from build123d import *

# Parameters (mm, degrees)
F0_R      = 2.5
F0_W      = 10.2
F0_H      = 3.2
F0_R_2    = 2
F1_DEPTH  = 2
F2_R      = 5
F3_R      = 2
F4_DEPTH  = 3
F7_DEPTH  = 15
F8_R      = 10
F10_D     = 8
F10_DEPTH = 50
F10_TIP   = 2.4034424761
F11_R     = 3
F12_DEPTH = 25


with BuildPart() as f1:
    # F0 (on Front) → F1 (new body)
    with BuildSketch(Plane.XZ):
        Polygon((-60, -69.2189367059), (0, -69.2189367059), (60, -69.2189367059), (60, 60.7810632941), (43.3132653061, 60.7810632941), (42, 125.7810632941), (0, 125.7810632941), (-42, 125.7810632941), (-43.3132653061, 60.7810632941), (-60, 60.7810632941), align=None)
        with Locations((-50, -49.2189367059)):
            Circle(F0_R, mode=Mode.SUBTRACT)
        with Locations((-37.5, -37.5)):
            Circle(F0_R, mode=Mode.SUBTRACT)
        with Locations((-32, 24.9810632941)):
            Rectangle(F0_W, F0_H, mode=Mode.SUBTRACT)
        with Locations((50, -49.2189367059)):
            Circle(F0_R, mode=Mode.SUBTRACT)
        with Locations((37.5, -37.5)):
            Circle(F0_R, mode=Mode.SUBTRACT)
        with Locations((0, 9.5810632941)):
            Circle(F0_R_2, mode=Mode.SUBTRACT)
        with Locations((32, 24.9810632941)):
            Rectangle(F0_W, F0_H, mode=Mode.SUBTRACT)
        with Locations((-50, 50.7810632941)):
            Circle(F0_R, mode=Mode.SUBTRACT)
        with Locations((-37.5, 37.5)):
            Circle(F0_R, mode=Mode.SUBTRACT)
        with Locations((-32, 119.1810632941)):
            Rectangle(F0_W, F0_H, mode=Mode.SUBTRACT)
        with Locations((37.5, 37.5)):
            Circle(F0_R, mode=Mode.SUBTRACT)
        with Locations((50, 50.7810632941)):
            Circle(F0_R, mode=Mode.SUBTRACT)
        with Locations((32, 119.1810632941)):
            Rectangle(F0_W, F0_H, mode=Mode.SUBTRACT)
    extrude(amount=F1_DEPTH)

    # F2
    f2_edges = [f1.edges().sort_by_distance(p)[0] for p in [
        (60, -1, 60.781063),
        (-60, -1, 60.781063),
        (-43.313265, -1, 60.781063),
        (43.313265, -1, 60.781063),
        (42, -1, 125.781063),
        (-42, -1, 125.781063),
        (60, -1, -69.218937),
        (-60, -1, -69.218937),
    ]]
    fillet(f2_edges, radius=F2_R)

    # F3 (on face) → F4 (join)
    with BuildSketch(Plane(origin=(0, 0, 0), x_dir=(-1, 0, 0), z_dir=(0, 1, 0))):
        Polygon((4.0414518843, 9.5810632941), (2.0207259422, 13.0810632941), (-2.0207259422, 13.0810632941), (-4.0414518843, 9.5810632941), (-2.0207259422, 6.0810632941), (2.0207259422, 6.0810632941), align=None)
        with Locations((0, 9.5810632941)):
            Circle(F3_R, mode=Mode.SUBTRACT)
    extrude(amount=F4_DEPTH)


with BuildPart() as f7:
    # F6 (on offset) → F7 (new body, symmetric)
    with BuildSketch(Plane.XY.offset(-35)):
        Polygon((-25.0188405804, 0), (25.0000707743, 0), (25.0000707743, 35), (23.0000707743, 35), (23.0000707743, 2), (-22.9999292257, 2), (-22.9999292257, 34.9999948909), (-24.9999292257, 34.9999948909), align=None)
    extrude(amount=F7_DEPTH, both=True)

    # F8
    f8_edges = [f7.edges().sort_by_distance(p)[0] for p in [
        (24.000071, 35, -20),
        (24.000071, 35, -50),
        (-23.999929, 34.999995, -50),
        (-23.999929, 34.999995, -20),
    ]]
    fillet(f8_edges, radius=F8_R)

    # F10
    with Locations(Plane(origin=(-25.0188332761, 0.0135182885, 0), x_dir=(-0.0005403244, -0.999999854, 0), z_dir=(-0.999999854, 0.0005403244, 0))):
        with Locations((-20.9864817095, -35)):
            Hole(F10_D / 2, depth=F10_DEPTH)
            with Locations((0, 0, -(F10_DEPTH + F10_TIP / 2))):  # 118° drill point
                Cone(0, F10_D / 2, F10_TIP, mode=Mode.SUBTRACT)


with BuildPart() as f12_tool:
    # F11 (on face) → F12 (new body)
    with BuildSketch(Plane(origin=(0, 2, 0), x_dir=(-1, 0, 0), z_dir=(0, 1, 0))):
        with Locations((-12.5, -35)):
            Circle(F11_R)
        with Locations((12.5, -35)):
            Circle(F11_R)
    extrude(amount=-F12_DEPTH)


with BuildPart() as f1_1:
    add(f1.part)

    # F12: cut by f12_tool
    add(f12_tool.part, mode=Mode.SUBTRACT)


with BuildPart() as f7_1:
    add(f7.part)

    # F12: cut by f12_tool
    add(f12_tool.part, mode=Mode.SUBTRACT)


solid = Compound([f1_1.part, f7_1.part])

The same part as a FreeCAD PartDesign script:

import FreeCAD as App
import Part
import Sketcher
Q = App.Units.Quantity


def edges_at(feature, points):
    """Names of the edges that pass closest to the given points."""
    edges = feature.Shape.Edges
    near = lambda p: min(range(len(edges)), key=lambda i: edges[i].distToShape(Part.Vertex(*p))[0])
    return sorted({f"Edge{near(p) + 1}" for p in points})

doc = App.newDocument("Part")
body = doc.addObject("PartDesign::Body", "Body")

# Sketch on XZ plane
sketch1 = doc.addObject("Sketcher::SketchObject", "Sketch")
body.addObject(sketch1)
sketch1.AttachmentSupport = (doc.XZ_Plane, [""])
sketch1.MapMode = "FlatFace"
sketch1.addGeometry(Part.LineSegment(App.Vector(-60, -69.218937, 0), App.Vector(60, -69.218937, 0)), False)
sketch1.addGeometry(Part.LineSegment(App.Vector(60, -69.218937, 0), App.Vector(60, 60.781063, 0)), False)
sketch1.addGeometry(Part.LineSegment(App.Vector(60, 60.781063, 0), App.Vector(43.313265, 60.781063, 0)), False)
sketch1.addGeometry(Part.LineSegment(App.Vector(43.313265, 60.781063, 0), App.Vector(42, 125.781063, 0)), False)
sketch1.addGeometry(Part.LineSegment(App.Vector(42, 125.781063, 0), App.Vector(-42, 125.781063, 0)), False)
sketch1.addGeometry(Part.LineSegment(App.Vector(-42, 125.781063, 0), App.Vector(-43.313265, 60.781063, 0)), False)
sketch1.addGeometry(Part.LineSegment(App.Vector(-43.313265, 60.781063, 0), App.Vector(-60, 60.781063, 0)), False)
sketch1.addGeometry(Part.LineSegment(App.Vector(-60, 60.781063, 0), App.Vector(-60, -69.218937, 0)), False)
sketch1.addGeometry(Part.Circle(App.Vector(-50, -49.218937, 0), App.Vector(0, 0, 1), 2.5), False)
sketch1.addGeometry(Part.Circle(App.Vector(-37.5, -37.5, 0), App.Vector(0, 0, 1), 2.5), False)
sketch1.addGeometry(Part.LineSegment(App.Vector(-26.9, 23.381063, 0), App.Vector(-37.1, 23.381063, 0)), False)
sketch1.addGeometry(Part.LineSegment(App.Vector(-37.1, 23.381063, 0), App.Vector(-37.1, 26.581063, 0)), False)
sketch1.addGeometry(Part.LineSegment(App.Vector(-37.1, 26.581063, 0), App.Vector(-26.9, 26.581063, 0)), False)
sketch1.addGeometry(Part.LineSegment(App.Vector(-26.9, 26.581063, 0), App.Vector(-26.9, 23.381063, 0)), False)
sketch1.addGeometry(Part.Circle(App.Vector(37.5, -37.5, 0), App.Vector(0, 0, 1), 2.5), False)
sketch1.addGeometry(Part.Circle(App.Vector(50, -49.218937, 0), App.Vector(0, 0, 1), 2.5), False)
sketch1.addGeometry(Part.Circle(App.Vector(0, 9.581063, 0), App.Vector(0, 0, 1), 2), False)
sketch1.addGeometry(Part.LineSegment(App.Vector(37.1, 23.381063, 0), App.Vector(26.9, 23.381063, 0)), False)
sketch1.addGeometry(Part.LineSegment(App.Vector(26.9, 23.381063, 0), App.Vector(26.9, 26.581063, 0)), False)
sketch1.addGeometry(Part.LineSegment(App.Vector(26.9, 26.581063, 0), App.Vector(37.1, 26.581063, 0)), False)
sketch1.addGeometry(Part.LineSegment(App.Vector(37.1, 26.581063, 0), App.Vector(37.1, 23.381063, 0)), False)
sketch1.addGeometry(Part.Circle(App.Vector(-50, 50.781063, 0), App.Vector(0, 0, 1), 2.5), False)
sketch1.addGeometry(Part.Circle(App.Vector(-37.5, 37.5, 0), App.Vector(0, 0, 1), 2.5), False)
sketch1.addGeometry(Part.LineSegment(App.Vector(-26.9, 117.581063, 0), App.Vector(-37.1, 117.581063, 0)), False)
sketch1.addGeometry(Part.LineSegment(App.Vector(-37.1, 117.581063, 0), App.Vector(-37.1, 120.781063, 0)), False)
sketch1.addGeometry(Part.LineSegment(App.Vector(-37.1, 120.781063, 0), App.Vector(-26.9, 120.781063, 0)), False)
sketch1.addGeometry(Part.LineSegment(App.Vector(-26.9, 120.781063, 0), App.Vector(-26.9, 117.581063, 0)), False)
sketch1.addGeometry(Part.Circle(App.Vector(37.5, 37.5, 0), App.Vector(0, 0, 1), 2.5), False)
sketch1.addGeometry(Part.Circle(App.Vector(50, 50.781063, 0), App.Vector(0, 0, 1), 2.5), False)
sketch1.addGeometry(Part.LineSegment(App.Vector(37.1, 117.581063, 0), App.Vector(26.9, 117.581063, 0)), False)
sketch1.addGeometry(Part.LineSegment(App.Vector(26.9, 117.581063, 0), App.Vector(26.9, 120.781063, 0)), False)
sketch1.addGeometry(Part.LineSegment(App.Vector(26.9, 120.781063, 0), App.Vector(37.1, 120.781063, 0)), False)
sketch1.addGeometry(Part.LineSegment(App.Vector(37.1, 120.781063, 0), App.Vector(37.1, 117.581063, 0)), False)
sketch1.addConstraint(Sketcher.Constraint("Coincident", 0, 2, 1, 1))
sketch1.addConstraint(Sketcher.Constraint("Coincident", 1, 2, 2, 1))
sketch1.addConstraint(Sketcher.Constraint("Coincident", 2, 2, 3, 1))
sketch1.addConstraint(Sketcher.Constraint("Coincident", 3, 2, 4, 1))
sketch1.addConstraint(Sketcher.Constraint("Coincident", 4, 2, 5, 1))
sketch1.addConstraint(Sketcher.Constraint("Coincident", 5, 2, 6, 1))
sketch1.addConstraint(Sketcher.Constraint("Coincident", 6, 2, 7, 1))
sketch1.addConstraint(Sketcher.Constraint("Coincident", 7, 2, 0, 1))
sketch1.addConstraint(Sketcher.Constraint("Coincident", 10, 2, 11, 1))
sketch1.addConstraint(Sketcher.Constraint("Coincident", 11, 2, 12, 1))
sketch1.addConstraint(Sketcher.Constraint("Coincident", 12, 2, 13, 1))
sketch1.addConstraint(Sketcher.Constraint("Coincident", 13, 2, 10, 1))
sketch1.addConstraint(Sketcher.Constraint("Coincident", 17, 2, 18, 1))
sketch1.addConstraint(Sketcher.Constraint("Coincident", 18, 2, 19, 1))
sketch1.addConstraint(Sketcher.Constraint("Coincident", 19, 2, 20, 1))
sketch1.addConstraint(Sketcher.Constraint("Coincident", 20, 2, 17, 1))
sketch1.addConstraint(Sketcher.Constraint("Coincident", 23, 2, 24, 1))
sketch1.addConstraint(Sketcher.Constraint("Coincident", 24, 2, 25, 1))
sketch1.addConstraint(Sketcher.Constraint("Coincident", 25, 2, 26, 1))
sketch1.addConstraint(Sketcher.Constraint("Coincident", 26, 2, 23, 1))
sketch1.addConstraint(Sketcher.Constraint("Coincident", 29, 2, 30, 1))
sketch1.addConstraint(Sketcher.Constraint("Coincident", 30, 2, 31, 1))
sketch1.addConstraint(Sketcher.Constraint("Coincident", 31, 2, 32, 1))
sketch1.addConstraint(Sketcher.Constraint("Coincident", 32, 2, 29, 1))
sketch1.addConstraint(Sketcher.Constraint("Horizontal", 0))
sketch1.addConstraint(Sketcher.Constraint("Vertical", 1))
sketch1.addConstraint(Sketcher.Constraint("Horizontal", 2))
sketch1.addConstraint(Sketcher.Constraint("Horizontal", 4))
sketch1.addConstraint(Sketcher.Constraint("Horizontal", 6))
sketch1.addConstraint(Sketcher.Constraint("Vertical", 7))
sketch1.addConstraint(Sketcher.Constraint("Horizontal", 10))
sketch1.addConstraint(Sketcher.Constraint("Vertical", 11))
sketch1.addConstraint(Sketcher.Constraint("Horizontal", 12))
sketch1.addConstraint(Sketcher.Constraint("Vertical", 13))
sketch1.addConstraint(Sketcher.Constraint("Horizontal", 17))
sketch1.addConstraint(Sketcher.Constraint("Vertical", 18))
sketch1.addConstraint(Sketcher.Constraint("Horizontal", 19))
sketch1.addConstraint(Sketcher.Constraint("Vertical", 20))
sketch1.addConstraint(Sketcher.Constraint("Horizontal", 23))
sketch1.addConstraint(Sketcher.Constraint("Vertical", 24))
sketch1.addConstraint(Sketcher.Constraint("Horizontal", 25))
sketch1.addConstraint(Sketcher.Constraint("Vertical", 26))
sketch1.addConstraint(Sketcher.Constraint("Horizontal", 29))
sketch1.addConstraint(Sketcher.Constraint("Vertical", 30))
sketch1.addConstraint(Sketcher.Constraint("Horizontal", 31))
sketch1.addConstraint(Sketcher.Constraint("Vertical", 32))
sketch1.addConstraint(Sketcher.Constraint("Equal", 8, 9))
sketch1.addConstraint(Sketcher.Constraint("Equal", 9, 14))
sketch1.addConstraint(Sketcher.Constraint("Equal", 14, 15))
sketch1.addConstraint(Sketcher.Constraint("Equal", 15, 21))
sketch1.addConstraint(Sketcher.Constraint("Equal", 21, 22))
sketch1.addConstraint(Sketcher.Constraint("Equal", 22, 27))
sketch1.addConstraint(Sketcher.Constraint("Equal", 27, 28))
sketch1.addConstraint(Sketcher.Constraint("Symmetric", 14, 3, 22, 3, -1, 1))
sketch1.addConstraint(Sketcher.Constraint("Symmetric", 9, 3, 27, 3, -1, 1))
sketch1.addConstraint(Sketcher.Constraint("Symmetric", 9, 3, 14, 3, -2))
sketch1.addConstraint(Sketcher.Constraint("Symmetric", 8, 3, 15, 3, -2))
sketch1.addConstraint(Sketcher.Constraint("Symmetric", 21, 3, 28, 3, -2))
sketch1.addConstraint(Sketcher.Constraint("Symmetric", 2, 2, 5, 2, -2))
sketch1.addConstraint(Sketcher.Constraint("Symmetric", 13, 2, 17, 2, -2))
sketch1.addConstraint(Sketcher.Constraint("Symmetric", 11, 2, 19, 2, -2))
sketch1.addConstraint(Sketcher.Constraint("Symmetric", 26, 2, 29, 2, -2))
sketch1.addConstraint(Sketcher.Constraint("Symmetric", 24, 2, 31, 2, -2))
sketch1.addConstraint(Sketcher.Constraint("PointOnObject", 16, 3, -2))
sketch1.addConstraint(Sketcher.Constraint("Vertical", 8, 3, 21, 3))
sketch1.addConstraint(Sketcher.Constraint("Vertical", 11, 2, 23, 2))
sketch1.addConstraint(Sketcher.Constraint("Vertical", 13, 2, 25, 2))
sketch1.addConstraint(Sketcher.Constraint("Equal", 2, 6))
sketch1.addConstraint(Sketcher.Constraint("Equal", 20, 24))
sketch1.addConstraint(Sketcher.Constraint("Equal", 3, 5))
sketch1.addConstraint(Sketcher.Constraint("Diameter", 8, Q("5 mm")))
sketch1.addConstraint(Sketcher.Constraint("Diameter", 16, Q("4 mm")))
sketch1.addConstraint(Sketcher.Constraint("DistanceX", 0, 1, 0, 2, Q("120 mm")))
sketch1.addConstraint(Sketcher.Constraint("DistanceX", 4, 2, 4, 1, Q("84 mm")))
sketch1.addConstraint(Sketcher.Constraint("DistanceY", 1, 1, 1, 2, Q("130 mm")))
sketch1.addConstraint(Sketcher.Constraint("DistanceX", 10, 2, 10, 1, Q("10.2 mm")))
sketch1.addConstraint(Sketcher.Constraint("DistanceY", 11, 1, 11, 2, Q("3.2 mm")))
sketch1.addConstraint(Sketcher.Constraint("DistanceX", 8, 3, -1, 1, Q("50 mm")))
sketch1.addConstraint(Sketcher.Constraint("DistanceX", 9, 3, 14, 3, Q("75 mm")))
sketch1.addConstraint(Sketcher.Constraint("DistanceY", 8, 3, 21, 3, Q("100 mm")))
sketch1.addConstraint(Sketcher.Constraint("DistanceY", 9, 3, 22, 3, Q("75 mm")))
sketch1.addConstraint(Sketcher.Constraint("DistanceY", 0, 2, 15, 3, Q("20 mm")))
sketch1.addConstraint(Sketcher.Constraint("DistanceY", 2, 2, 3, 2, Q("65 mm")))
sketch1.addConstraint(Sketcher.Constraint("DistanceY", 16, 3, 11, 2, Q("17 mm")))
sketch1.addConstraint(Sketcher.Constraint("DistanceY", 24, 2, 4, 2, Q("5 mm")))
sketch1.addConstraint(Sketcher.Constraint("DistanceX", 23, 2, 29, 2, Q("64 mm")))
sketch1.addConstraint(Sketcher.Constraint("DistanceY", 8, 3, 16, 3, Q("58.8 mm")))
sketch1.addConstraint(Sketcher.Constraint("DistanceX", 2, 2, 2, 1, Q("16.686735 mm")))
sketch1.addConstraint(Sketcher.Constraint("DistanceY", 8, 3, -1, 1, Q("49.218937 mm")))
pad1 = doc.addObject("PartDesign::Pad", "Pad")
body.addObject(pad1)
pad1.Profile = sketch1
pad1.Length = 2
doc.recompute()

fillet = doc.addObject("PartDesign::Fillet", "Fillet")
body.addObject(fillet)
fillet.Base = (pad1, edges_at(pad1, [
    (60, -1, 60.781),
    (-60, -1, 60.781),
    (-43.313, -1, 60.781),
    (43.313, -1, 60.781),
    (42, -1, 125.781),
    (-42, -1, 125.781),
    (60, -1, -69.219),
    (-60, -1, -69.219),
]))
fillet.Radius = 5

# Sketch on XZ plane
sketch2 = doc.addObject("Sketcher::SketchObject", "Sketch001")
body.addObject(sketch2)
sketch2.AttachmentSupport = (doc.XZ_Plane, [""])
sketch2.MapMode = "FlatFace"
sketch2.addGeometry(Part.LineSegment(App.Vector(-4.041452, 9.581063, 0), App.Vector(-2.020726, 13.081063, 0)), False)
sketch2.addGeometry(Part.LineSegment(App.Vector(-2.020726, 13.081063, 0), App.Vector(2.020726, 13.081063, 0)), False)
sketch2.addGeometry(Part.LineSegment(App.Vector(2.020726, 13.081063, 0), App.Vector(4.041452, 9.581063, 0)), False)
sketch2.addGeometry(Part.LineSegment(App.Vector(4.041452, 9.581063, 0), App.Vector(2.020726, 6.081063, 0)), False)
sketch2.addGeometry(Part.LineSegment(App.Vector(2.020726, 6.081063, 0), App.Vector(-2.020726, 6.081063, 0)), False)
sketch2.addGeometry(Part.LineSegment(App.Vector(-2.020726, 6.081063, 0), App.Vector(-4.041452, 9.581063, 0)), False)
sketch2.addGeometry(Part.Circle(App.Vector(0, 9.581063, 0), App.Vector(0, 0, 1), 2), False)
sketch2.addConstraint(Sketcher.Constraint("Coincident", 0, 2, 1, 1))
sketch2.addConstraint(Sketcher.Constraint("Coincident", 1, 2, 2, 1))
sketch2.addConstraint(Sketcher.Constraint("Coincident", 2, 2, 3, 1))
sketch2.addConstraint(Sketcher.Constraint("Coincident", 3, 2, 4, 1))
sketch2.addConstraint(Sketcher.Constraint("Coincident", 4, 2, 5, 1))
sketch2.addConstraint(Sketcher.Constraint("Coincident", 5, 2, 0, 1))
sketch2.addConstraint(Sketcher.Constraint("Horizontal", 1))
sketch2.addConstraint(Sketcher.Constraint("Horizontal", 4))
sketch2.addConstraint(Sketcher.Constraint("Symmetric", 2, 2, 5, 2, -2))
sketch2.addConstraint(Sketcher.Constraint("PointOnObject", 6, 3, -2))
sketch2.addConstraint(Sketcher.Constraint("Parallel", 0, 3))
sketch2.addConstraint(Sketcher.Constraint("Parallel", 2, 5))
sketch2.addConstraint(Sketcher.Constraint("Horizontal", 6, 3, 2, 2))
sketch2.addConstraint(Sketcher.Constraint("Vertical", 1, 2, 3, 2))
sketch2.addConstraint(Sketcher.Constraint("Vertical", 0, 2, 4, 2))
sketch2.addConstraint(Sketcher.Constraint("Diameter", 6, Q("4 mm")))
sketch2.addConstraint(Sketcher.Constraint("Angle", 0, Q("60 deg")))
sketch2.addConstraint(Sketcher.Constraint("DistanceY", 3, 2, 1, 2, Q("7 mm")))
sketch2.addConstraint(Sketcher.Constraint("DistanceX", 1, 1, 1, 2, Q("4.041452 mm")))
sketch2.addConstraint(Sketcher.Constraint("DistanceY", -1, 1, 6, 3, Q("9.581063 mm")))
pad2 = doc.addObject("PartDesign::Pad", "Pad001")
body.addObject(pad2)
pad2.Profile = sketch2
pad2.Length = 3
pad2.Reversed = True
body2 = doc.addObject("PartDesign::Body", "Body001")

# Sketch on XY plane
sketch3 = doc.addObject("Sketcher::SketchObject", "Sketch002")
body2.addObject(sketch3)
sketch3.AttachmentSupport = (doc.getObject("XY_Plane001"), [""])
sketch3.MapMode = "FlatFace"
sketch3.AttachmentOffset = App.Placement(App.Vector(0, 0, -35), App.Rotation())
sketch3.addGeometry(Part.LineSegment(App.Vector(-25.018841, 0, 0), App.Vector(25.000071, 0, 0)), False)
sketch3.addGeometry(Part.LineSegment(App.Vector(25.000071, 0, 0), App.Vector(25.000071, 35, 0)), False)
sketch3.addGeometry(Part.LineSegment(App.Vector(25.000071, 35, 0), App.Vector(23.000071, 35, 0)), False)
sketch3.addGeometry(Part.LineSegment(App.Vector(23.000071, 35, 0), App.Vector(23.000071, 2, 0)), False)
sketch3.addGeometry(Part.LineSegment(App.Vector(23.000071, 2, 0), App.Vector(-22.999929, 2, 0)), False)
sketch3.addGeometry(Part.LineSegment(App.Vector(-22.999929, 2, 0), App.Vector(-22.999929, 34.999995, 0)), False)
sketch3.addGeometry(Part.LineSegment(App.Vector(-22.999929, 34.999995, 0), App.Vector(-24.999929, 34.999995, 0)), False)
sketch3.addGeometry(Part.LineSegment(App.Vector(-24.999929, 34.999995, 0), App.Vector(-25.018841, 0, 0)), False)
sketch3.addConstraint(Sketcher.Constraint("Coincident", 0, 2, 1, 1))
sketch3.addConstraint(Sketcher.Constraint("Coincident", 1, 2, 2, 1))
sketch3.addConstraint(Sketcher.Constraint("Coincident", 2, 2, 3, 1))
sketch3.addConstraint(Sketcher.Constraint("Coincident", 3, 2, 4, 1))
sketch3.addConstraint(Sketcher.Constraint("Coincident", 4, 2, 5, 1))
sketch3.addConstraint(Sketcher.Constraint("Coincident", 5, 2, 6, 1))
sketch3.addConstraint(Sketcher.Constraint("Coincident", 6, 2, 7, 1))
sketch3.addConstraint(Sketcher.Constraint("Coincident", 7, 2, 0, 1))
sketch3.addConstraint(Sketcher.Constraint("Horizontal", 0))
sketch3.addConstraint(Sketcher.Constraint("Vertical", 1))
sketch3.addConstraint(Sketcher.Constraint("Horizontal", 2))
sketch3.addConstraint(Sketcher.Constraint("Vertical", 3))
sketch3.addConstraint(Sketcher.Constraint("Horizontal", 4))
sketch3.addConstraint(Sketcher.Constraint("Vertical", 5))
sketch3.addConstraint(Sketcher.Constraint("Horizontal", 6))
sketch3.addConstraint(Sketcher.Constraint("PointOnObject", 0, 2, -1))
sketch3.addConstraint(Sketcher.Constraint("Equal", 2, 6))
sketch3.addConstraint(Sketcher.Constraint("DistanceX", 2, 2, 2, 1, Q("2 mm")))
sketch3.addConstraint(Sketcher.Constraint("DistanceX", 4, 2, 4, 1, Q("46 mm")))
sketch3.addConstraint(Sketcher.Constraint("DistanceY", 1, 1, 1, 2, Q("35 mm")))
sketch3.addConstraint(Sketcher.Constraint("DistanceY", 3, 2, 3, 1, Q("33 mm")))
sketch3.addConstraint(Sketcher.Constraint("Distance", 7, Q("35 mm")))
sketch3.addConstraint(Sketcher.Constraint("DistanceX", 0, 1, 0, 2, Q("50.018911 mm")))
sketch3.addConstraint(Sketcher.Constraint("DistanceX", -1, 1, 0, 2, Q("25.000071 mm")))
pad3 = doc.addObject("PartDesign::Pad", "Pad002")
body2.addObject(pad3)
pad3.Profile = sketch3
pad3.Length = 30
pad3.Midplane = True
doc.recompute()

fillet2 = doc.addObject("PartDesign::Fillet", "Fillet001")
body2.addObject(fillet2)
fillet2.Base = (pad3, edges_at(pad3, [
    (24, 35, -20),
    (24, 35, -50),
    (-24, 35, -50),
    (-24, 35, -20),
]))
fillet2.Radius = 10

# Sketch on an angled plane
sketch4 = doc.addObject("Sketcher::SketchObject", "Sketch003")
body2.addObject(sketch4)
sketch4.Placement = App.Placement(App.Vector(-25.018833, 0.013518, 0), App.Rotation(App.Vector(-0.000540324, -0.999999854, 0), App.Vector(0, 0, 1), App.Vector(-0.999999854, 0.000540324, 0), "ZXY"))
sketch4.addGeometry(Part.Circle(App.Vector(-20.986482, -35, 0), App.Vector(0, 0, 1), 4), False)
sketch4.addConstraint(Sketcher.Constraint("Diameter", 0, Q("8 mm")))
sketch4.addConstraint(Sketcher.Constraint("DistanceY", 0, 3, -1, 1, Q("35 mm")))
sketch4.addConstraint(Sketcher.Constraint("DistanceX", 0, 3, -1, 1, Q("20.986482 mm")))
doc.recompute()
hole = doc.addObject("PartDesign::Hole", "Hole")
body2.addObject(hole)
hole.Profile = sketch4
hole.ThreadType = "None"
hole.Diameter = 8
hole.DepthType = "Dimension"
hole.Depth = 50
hole.DrillPoint = "Angled"
hole.DrillPointAngle = 118
body3 = doc.addObject("PartDesign::Body", "Body002")
body3.AllowCompound = True

# Sketch on XZ plane
sketch5 = doc.addObject("Sketcher::SketchObject", "Sketch004")
body3.addObject(sketch5)
sketch5.AttachmentSupport = (doc.getObject("XZ_Plane002"), [""])
sketch5.MapMode = "FlatFace"
sketch5.AttachmentOffset = App.Placement(App.Vector(0, 0, -2), App.Rotation())
sketch5.addGeometry(Part.Circle(App.Vector(12.5, -35, 0), App.Vector(0, 0, 1), 3), False)
sketch5.addGeometry(Part.Circle(App.Vector(-12.5, -35, 0), App.Vector(0, 0, 1), 3), False)
sketch5.addConstraint(Sketcher.Constraint("Equal", 0, 1))
sketch5.addConstraint(Sketcher.Constraint("Symmetric", 0, 3, 1, 3, -2))
sketch5.addConstraint(Sketcher.Constraint("Diameter", 0, Q("6 mm")))
sketch5.addConstraint(Sketcher.Constraint("DistanceY", 0, 3, -1, 1, Q("35 mm")))
sketch5.addConstraint(Sketcher.Constraint("DistanceX", 1, 3, 0, 3, Q("25 mm")))
pad4 = doc.addObject("PartDesign::Pad", "Pad003")
body3.addObject(pad4)
pad4.Profile = sketch5
pad4.Length = 25
doc.recompute()

body4 = doc.addObject("PartDesign::Body", "Body003")
body4.BaseFeature = body3
boolean = doc.addObject("PartDesign::Boolean", "Boolean")
body.addObject(boolean)
boolean.Type = "Cut"
boolean.addObjects([body4])
doc.recompute()

boolean2 = doc.addObject("PartDesign::Boolean", "Boolean001")
body2.addObject(boolean2)
boolean2.Type = "Cut"
boolean2.addObjects([body3])

doc.recompute()
